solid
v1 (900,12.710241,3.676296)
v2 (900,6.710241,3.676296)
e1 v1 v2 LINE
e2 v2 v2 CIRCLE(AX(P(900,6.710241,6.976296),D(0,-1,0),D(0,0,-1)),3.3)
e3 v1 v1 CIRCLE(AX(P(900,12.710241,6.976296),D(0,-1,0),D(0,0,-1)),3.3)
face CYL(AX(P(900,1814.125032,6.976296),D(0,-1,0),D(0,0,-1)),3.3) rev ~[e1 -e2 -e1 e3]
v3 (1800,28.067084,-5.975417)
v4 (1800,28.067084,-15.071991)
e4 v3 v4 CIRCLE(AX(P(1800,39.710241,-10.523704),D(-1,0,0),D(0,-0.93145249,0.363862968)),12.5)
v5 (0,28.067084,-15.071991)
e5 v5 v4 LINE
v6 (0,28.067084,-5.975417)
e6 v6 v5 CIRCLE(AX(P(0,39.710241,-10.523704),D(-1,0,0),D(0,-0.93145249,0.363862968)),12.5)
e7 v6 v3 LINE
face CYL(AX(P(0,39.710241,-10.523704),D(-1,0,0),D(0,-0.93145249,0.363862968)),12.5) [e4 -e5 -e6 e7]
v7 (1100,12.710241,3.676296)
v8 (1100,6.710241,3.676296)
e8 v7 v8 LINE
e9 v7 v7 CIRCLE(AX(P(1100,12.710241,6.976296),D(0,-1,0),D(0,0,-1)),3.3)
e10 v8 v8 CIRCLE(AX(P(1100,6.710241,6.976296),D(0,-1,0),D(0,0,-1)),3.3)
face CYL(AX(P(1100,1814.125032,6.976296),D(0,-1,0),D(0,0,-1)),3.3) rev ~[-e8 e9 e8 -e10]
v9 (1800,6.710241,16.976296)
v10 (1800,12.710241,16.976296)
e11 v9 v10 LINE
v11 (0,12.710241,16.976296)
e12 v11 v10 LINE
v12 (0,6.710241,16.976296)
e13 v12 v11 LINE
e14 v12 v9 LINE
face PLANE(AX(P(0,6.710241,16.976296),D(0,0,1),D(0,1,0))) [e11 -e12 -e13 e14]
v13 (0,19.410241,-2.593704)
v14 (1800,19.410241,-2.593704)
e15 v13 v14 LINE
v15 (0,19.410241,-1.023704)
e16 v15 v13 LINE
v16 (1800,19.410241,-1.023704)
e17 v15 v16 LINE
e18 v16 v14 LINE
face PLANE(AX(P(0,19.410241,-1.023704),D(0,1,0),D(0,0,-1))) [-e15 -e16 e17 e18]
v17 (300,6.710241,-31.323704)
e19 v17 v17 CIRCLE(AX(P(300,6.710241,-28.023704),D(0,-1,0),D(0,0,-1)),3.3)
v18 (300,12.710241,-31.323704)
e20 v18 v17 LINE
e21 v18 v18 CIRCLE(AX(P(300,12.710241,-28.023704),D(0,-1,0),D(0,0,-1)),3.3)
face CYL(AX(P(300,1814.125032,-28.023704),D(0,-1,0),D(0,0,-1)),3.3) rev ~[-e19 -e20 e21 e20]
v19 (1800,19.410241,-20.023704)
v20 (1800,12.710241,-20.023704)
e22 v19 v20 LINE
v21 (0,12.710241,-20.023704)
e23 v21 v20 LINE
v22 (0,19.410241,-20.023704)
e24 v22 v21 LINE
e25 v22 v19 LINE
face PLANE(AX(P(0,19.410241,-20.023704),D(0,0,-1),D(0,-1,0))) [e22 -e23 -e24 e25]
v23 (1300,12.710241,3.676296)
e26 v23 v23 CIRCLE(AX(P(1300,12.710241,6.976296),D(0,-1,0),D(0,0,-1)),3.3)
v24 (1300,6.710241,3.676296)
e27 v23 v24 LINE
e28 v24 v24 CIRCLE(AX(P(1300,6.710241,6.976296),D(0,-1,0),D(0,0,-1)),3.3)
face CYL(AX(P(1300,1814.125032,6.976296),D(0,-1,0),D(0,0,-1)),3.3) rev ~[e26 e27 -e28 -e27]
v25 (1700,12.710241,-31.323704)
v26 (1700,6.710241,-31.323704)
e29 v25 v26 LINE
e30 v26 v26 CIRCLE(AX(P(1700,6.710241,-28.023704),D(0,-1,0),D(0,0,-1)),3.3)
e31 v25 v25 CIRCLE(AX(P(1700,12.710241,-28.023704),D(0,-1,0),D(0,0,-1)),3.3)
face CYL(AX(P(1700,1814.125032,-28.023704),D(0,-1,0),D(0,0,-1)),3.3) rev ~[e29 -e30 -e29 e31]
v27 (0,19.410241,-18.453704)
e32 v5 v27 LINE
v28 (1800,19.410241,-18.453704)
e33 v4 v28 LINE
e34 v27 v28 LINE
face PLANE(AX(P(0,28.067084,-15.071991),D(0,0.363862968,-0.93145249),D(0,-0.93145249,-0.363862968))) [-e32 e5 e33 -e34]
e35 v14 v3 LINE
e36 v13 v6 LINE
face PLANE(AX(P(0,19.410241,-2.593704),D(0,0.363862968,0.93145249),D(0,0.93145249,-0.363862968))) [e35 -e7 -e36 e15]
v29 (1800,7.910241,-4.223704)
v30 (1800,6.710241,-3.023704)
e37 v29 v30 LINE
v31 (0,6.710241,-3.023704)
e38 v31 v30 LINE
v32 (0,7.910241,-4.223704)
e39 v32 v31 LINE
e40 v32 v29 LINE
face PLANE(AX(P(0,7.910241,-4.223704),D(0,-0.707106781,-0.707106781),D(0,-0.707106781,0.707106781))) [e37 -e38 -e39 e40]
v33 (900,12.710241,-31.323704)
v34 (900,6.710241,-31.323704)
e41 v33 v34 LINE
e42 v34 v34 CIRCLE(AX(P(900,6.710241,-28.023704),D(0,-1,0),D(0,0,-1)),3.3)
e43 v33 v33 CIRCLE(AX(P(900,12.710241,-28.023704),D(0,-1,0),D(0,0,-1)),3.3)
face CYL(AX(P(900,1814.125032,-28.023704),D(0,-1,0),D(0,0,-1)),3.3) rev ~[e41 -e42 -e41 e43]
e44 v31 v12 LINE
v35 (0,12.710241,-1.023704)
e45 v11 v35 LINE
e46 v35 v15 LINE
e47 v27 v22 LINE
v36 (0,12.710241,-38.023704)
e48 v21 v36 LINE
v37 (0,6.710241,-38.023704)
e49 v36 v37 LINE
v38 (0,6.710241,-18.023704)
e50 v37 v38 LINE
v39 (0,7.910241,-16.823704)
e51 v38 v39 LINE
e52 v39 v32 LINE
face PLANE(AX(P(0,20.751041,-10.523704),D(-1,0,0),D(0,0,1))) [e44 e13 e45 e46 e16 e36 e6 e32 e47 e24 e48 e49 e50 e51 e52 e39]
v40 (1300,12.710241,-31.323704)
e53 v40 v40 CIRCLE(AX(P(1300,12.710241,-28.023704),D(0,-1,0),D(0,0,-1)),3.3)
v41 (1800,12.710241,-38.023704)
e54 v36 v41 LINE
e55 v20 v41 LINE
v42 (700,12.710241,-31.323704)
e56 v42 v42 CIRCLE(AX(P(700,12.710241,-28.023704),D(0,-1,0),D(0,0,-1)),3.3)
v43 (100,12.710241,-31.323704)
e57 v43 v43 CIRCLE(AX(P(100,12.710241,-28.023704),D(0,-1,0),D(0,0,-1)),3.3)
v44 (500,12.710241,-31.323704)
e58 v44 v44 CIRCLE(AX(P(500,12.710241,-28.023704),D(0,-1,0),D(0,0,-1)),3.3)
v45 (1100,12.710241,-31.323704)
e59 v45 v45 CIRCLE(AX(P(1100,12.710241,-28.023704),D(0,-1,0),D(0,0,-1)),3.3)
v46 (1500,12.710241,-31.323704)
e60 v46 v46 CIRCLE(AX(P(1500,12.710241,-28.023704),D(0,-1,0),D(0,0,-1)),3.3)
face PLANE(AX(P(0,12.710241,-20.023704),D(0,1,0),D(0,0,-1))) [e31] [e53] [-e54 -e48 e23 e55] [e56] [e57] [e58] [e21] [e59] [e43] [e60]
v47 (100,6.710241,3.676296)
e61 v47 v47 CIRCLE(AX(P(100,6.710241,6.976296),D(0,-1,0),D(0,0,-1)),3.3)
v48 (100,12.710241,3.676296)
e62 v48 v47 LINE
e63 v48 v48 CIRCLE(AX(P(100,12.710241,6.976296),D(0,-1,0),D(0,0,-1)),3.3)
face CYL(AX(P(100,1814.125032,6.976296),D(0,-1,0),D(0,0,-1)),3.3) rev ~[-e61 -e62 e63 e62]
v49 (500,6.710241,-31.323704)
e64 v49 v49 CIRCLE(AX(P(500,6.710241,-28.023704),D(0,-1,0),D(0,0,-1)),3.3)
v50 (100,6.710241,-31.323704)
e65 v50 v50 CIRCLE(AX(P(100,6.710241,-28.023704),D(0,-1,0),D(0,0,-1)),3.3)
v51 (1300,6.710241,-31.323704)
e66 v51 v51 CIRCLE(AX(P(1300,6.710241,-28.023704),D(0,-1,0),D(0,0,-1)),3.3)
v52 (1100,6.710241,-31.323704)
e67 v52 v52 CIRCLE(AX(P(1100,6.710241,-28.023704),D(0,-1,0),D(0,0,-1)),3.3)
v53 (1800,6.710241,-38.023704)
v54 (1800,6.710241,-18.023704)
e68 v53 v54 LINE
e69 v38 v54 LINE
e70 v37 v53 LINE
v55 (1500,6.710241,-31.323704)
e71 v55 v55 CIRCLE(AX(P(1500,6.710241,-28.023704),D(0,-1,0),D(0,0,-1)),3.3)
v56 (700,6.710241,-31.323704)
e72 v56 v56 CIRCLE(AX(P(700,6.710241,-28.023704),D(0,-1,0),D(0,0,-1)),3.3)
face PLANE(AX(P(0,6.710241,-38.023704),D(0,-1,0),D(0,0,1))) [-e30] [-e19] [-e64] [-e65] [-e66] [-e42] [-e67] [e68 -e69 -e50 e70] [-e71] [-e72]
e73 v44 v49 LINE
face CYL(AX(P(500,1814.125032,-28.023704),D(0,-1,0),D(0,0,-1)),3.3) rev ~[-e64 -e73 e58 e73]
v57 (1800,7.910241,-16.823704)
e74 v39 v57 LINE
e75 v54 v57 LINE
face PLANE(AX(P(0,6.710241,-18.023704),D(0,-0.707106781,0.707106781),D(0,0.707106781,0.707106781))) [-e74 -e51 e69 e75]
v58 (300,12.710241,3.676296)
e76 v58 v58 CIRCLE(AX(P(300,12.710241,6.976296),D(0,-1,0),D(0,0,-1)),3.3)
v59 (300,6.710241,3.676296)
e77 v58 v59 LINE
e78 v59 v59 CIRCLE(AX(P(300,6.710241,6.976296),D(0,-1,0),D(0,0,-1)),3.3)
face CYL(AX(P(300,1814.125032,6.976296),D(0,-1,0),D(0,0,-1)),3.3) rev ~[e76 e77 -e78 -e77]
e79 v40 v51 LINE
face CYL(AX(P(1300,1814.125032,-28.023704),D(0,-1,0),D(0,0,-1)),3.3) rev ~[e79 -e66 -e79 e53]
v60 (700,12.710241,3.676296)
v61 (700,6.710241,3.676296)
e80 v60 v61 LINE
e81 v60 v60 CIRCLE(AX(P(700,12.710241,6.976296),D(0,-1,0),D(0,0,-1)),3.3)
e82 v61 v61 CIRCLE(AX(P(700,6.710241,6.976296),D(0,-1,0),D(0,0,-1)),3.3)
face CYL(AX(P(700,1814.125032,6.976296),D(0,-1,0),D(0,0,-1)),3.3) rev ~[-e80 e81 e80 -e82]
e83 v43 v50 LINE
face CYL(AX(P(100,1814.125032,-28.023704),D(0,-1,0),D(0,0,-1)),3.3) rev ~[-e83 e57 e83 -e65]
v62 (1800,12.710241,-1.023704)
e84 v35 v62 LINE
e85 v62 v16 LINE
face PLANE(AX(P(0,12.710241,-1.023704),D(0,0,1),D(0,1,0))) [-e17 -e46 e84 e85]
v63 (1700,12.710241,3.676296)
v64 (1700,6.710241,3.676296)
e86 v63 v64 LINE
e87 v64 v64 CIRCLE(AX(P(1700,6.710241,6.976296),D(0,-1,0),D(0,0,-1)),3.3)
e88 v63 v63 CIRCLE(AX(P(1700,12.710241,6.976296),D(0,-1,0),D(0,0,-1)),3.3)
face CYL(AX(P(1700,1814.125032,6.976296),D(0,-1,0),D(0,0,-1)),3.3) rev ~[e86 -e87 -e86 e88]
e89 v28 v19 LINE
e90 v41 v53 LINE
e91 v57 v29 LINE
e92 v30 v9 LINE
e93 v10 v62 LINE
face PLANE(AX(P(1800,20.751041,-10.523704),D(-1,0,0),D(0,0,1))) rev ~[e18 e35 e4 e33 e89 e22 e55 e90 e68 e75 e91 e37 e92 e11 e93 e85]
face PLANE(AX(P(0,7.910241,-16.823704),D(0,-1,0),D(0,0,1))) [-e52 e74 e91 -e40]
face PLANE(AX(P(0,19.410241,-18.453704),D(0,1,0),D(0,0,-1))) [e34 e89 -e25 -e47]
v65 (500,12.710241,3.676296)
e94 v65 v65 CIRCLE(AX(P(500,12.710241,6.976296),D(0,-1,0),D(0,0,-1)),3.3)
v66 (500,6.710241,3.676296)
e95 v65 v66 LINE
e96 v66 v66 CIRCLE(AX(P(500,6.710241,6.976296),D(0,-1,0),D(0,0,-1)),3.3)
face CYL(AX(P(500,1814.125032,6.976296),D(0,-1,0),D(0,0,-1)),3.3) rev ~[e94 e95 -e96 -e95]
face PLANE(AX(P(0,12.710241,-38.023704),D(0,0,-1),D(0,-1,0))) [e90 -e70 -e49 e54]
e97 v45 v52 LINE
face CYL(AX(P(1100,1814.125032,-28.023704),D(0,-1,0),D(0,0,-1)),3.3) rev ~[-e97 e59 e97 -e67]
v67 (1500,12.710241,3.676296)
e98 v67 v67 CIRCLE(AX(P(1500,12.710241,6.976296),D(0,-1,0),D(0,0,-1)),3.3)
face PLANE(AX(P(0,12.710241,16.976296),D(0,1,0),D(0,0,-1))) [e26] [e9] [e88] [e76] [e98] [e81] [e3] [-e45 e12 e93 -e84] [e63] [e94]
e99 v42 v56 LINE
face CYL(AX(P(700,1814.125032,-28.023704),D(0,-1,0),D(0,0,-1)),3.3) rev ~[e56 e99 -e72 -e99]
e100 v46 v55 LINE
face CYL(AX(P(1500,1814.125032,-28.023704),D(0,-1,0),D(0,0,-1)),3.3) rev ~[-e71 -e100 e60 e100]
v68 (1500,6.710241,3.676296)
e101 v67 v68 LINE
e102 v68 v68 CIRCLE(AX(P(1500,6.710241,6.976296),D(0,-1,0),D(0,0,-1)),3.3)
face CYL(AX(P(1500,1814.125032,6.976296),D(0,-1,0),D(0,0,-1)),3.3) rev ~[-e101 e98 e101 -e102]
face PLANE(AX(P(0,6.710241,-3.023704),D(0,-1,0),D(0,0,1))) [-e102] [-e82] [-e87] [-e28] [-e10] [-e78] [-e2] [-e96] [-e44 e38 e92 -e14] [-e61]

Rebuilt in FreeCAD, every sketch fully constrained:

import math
import FreeCAD as App
import Part
import Sketcher

V = App.Vector

doc = App.newDocument("Part")
body = doc.addObject("PartDesign::Body", "Body")

# Sketch on YZ plane
sketch1 = doc.addObject("Sketcher::SketchObject", "Sketch")
body.addObject(sketch1)
sketch1.AttachmentSupport = (doc.YZ_Plane, [""])
sketch1.MapMode = "FlatFace"
sketch1.addGeometry(Part.LineSegment(V(6.7, -38, 0), V(12.7, -38, 0)), False)
sketch1.addGeometry(Part.LineSegment(V(12.7, -38, 0), V(12.7, -20, 0)), False)
sketch1.addGeometry(Part.LineSegment(V(12.7, -20, 0), V(19.4, -20, 0)), False)
sketch1.addGeometry(Part.LineSegment(V(19.4, -20, 0), V(19.4, -18.5, 0)), False)
sketch1.addGeometry(Part.LineSegment(V(19.4, -18.5, 0), V(28.1, -15.1, 0)), False)
sketch1.addGeometry(Part.ArcOfCircle(Part.Circle(V(39.7, -10.5, 0), V(0, 0, 1), 12.5), math.radians(-159), math.radians(159)), False)
sketch1.addGeometry(Part.LineSegment(V(28.1, -6, 0), V(19.4, -2.6, 0)), False)
sketch1.addGeometry(Part.LineSegment(V(19.4, -2.6, 0), V(19.4, -1, 0)), False)
sketch1.addGeometry(Part.LineSegment(V(19.4, -1, 0), V(12.7, -1, 0)), False)
sketch1.addGeometry(Part.LineSegment(V(12.7, -1, 0), V(12.7, 17, 0)), False)
sketch1.addGeometry(Part.LineSegment(V(12.7, 17, 0), V(6.7, 17, 0)), False)
sketch1.addGeometry(Part.LineSegment(V(6.7, 17, 0), V(6.7, -3, 0)), False)
sketch1.addGeometry(Part.LineSegment(V(6.7, -3, 0), V(7.9, -4.2, 0)), False)
sketch1.addGeometry(Part.LineSegment(V(7.9, -4.2, 0), V(7.9, -16.8, 0)), False)
sketch1.addGeometry(Part.LineSegment(V(7.9, -16.8, 0), V(6.7, -18, 0)), False)
sketch1.addGeometry(Part.LineSegment(V(6.7, -18, 0), V(6.7, -38, 0)), False)
sketch1.addConstraint(Sketcher.Constraint("Coincident", 0, 2, 1, 1))
sketch1.addConstraint(Sketcher.Constraint("Coincident", 1, 2, 2, 1))
sketch1.addConstraint(Sketcher.Constraint("Coincident", 2, 2, 3, 1))
sketch1.addConstraint(Sketcher.Constraint("Coincident", 3, 2, 4, 1))
sketch1.addConstraint(Sketcher.Constraint("Coincident", 4, 2, 5, 1))
sketch1.addConstraint(Sketcher.Constraint("Coincident", 5, 2, 6, 1))
sketch1.addConstraint(Sketcher.Constraint("Coincident", 6, 2, 7, 1))
sketch1.addConstraint(Sketcher.Constraint("Coincident", 7, 2, 8, 1))
sketch1.addConstraint(Sketcher.Constraint("Coincident", 8, 2, 9, 1))
sketch1.addConstraint(Sketcher.Constraint("Coincident", 9, 2, 10, 1))
sketch1.addConstraint(Sketcher.Constraint("Coincident", 10, 2, 11, 1))
sketch1.addConstraint(Sketcher.Constraint("Coincident", 11, 2, 12, 1))
sketch1.addConstraint(Sketcher.Constraint("Coincident", 12, 2, 13, 1))
sketch1.addConstraint(Sketcher.Constraint("Coincident", 13, 2, 14, 1))
sketch1.addConstraint(Sketcher.Constraint("Coincident", 14, 2, 15, 1))
sketch1.addConstraint(Sketcher.Constraint("Coincident", 15, 2, 0, 1))
sketch1.addConstraint(Sketcher.Constraint("Horizontal", 0))
sketch1.addConstraint(Sketcher.Constraint("Vertical", 1))
sketch1.addConstraint(Sketcher.Constraint("Horizontal", 2))
sketch1.addConstraint(Sketcher.Constraint("Vertical", 3))
sketch1.addConstraint(Sketcher.Constraint("Vertical", 7))
sketch1.addConstraint(Sketcher.Constraint("Horizontal", 8))
sketch1.addConstraint(Sketcher.Constraint("Vertical", 9))
sketch1.addConstraint(Sketcher.Constraint("Horizontal", 10))
sketch1.addConstraint(Sketcher.Constraint("Vertical", 11))
sketch1.addConstraint(Sketcher.Constraint("Vertical", 13))
sketch1.addConstraint(Sketcher.Constraint("Vertical", 15))
sketch1.addConstraint(Sketcher.Constraint("Perpendicular", 12, 14))
sketch1.addConstraint(Sketcher.Constraint("Vertical", 4, 2, 5, 2))
sketch1.addConstraint(Sketcher.Constraint("Vertical", 3, 2, 6, 2))
sketch1.addConstraint(Sketcher.Constraint("Vertical", 1, 2, 8, 2))
sketch1.addConstraint(Sketcher.Constraint("Vertical", 11, 2, 14, 2))
sketch1.addConstraint(Sketcher.Constraint("Equal", 3, 7))
sketch1.addConstraint(Sketcher.Constraint("Equal", 1, 9))
sketch1.addConstraint(Sketcher.Constraint("Equal", 11, 15))
sketch1.addConstraint(Sketcher.Constraint("Equal", 4, 6))
sketch1.addConstraint(Sketcher.Constraint("Equal", 12, 14))
sketch1.addConstraint(Sketcher.Constraint("Radius", 5, 12.5))
sketch1.addConstraint(Sketcher.Constraint("DistanceX", 0, 1, 0, 2, 6.0))
sketch1.addConstraint(Sketcher.Constraint("DistanceY", 1, 1, 1, 2, 18.0))
sketch1.addConstraint(Sketcher.Constraint("DistanceY", 11, 2, 11, 1, 20.0))
sketch1.addConstraint(Sketcher.Constraint("DistanceX", 2, 1, 2, 2, 6.7))
sketch1.addConstraint(Sketcher.Constraint("DistanceY", 13, 2, 13, 1, 12.6))
sketch1.addConstraint(Sketcher.Constraint("DistanceX", 0, 2, 5, 3, 27.0))
sketch1.addConstraint(Sketcher.Constraint("DistanceY", 2, 2, 7, 2, 19.0))
sketch1.addConstraint(Sketcher.Constraint("DistanceY", 3, 1, 3, 2, 1.57))
sketch1.addConstraint(Sketcher.Constraint("DistanceX", -1, 1, 5, 3, 39.710241))
sketch1.addConstraint(Sketcher.Constraint("DistanceY", 4, 2, -1, 1, 15.071991))
sketch1.addConstraint(Sketcher.Constraint("DistanceY", 5, 3, -1, 1, 10.523704))
pad1 = doc.addObject("PartDesign::Pad", "Pad")
body.addObject(pad1)
pad1.Profile = sketch1
pad1.Length = 1800

# Sketch on XZ plane
sketch2 = doc.addObject("Sketcher::SketchObject", "Sketch001")
body.addObject(sketch2)
sketch2.AttachmentSupport = (doc.XZ_Plane, [""])
sketch2.MapMode = "FlatFace"
sketch2.AttachmentOffset = App.Placement(V(0, 0, -12.710241), App.Rotation())
sketch2.addGeometry(Part.Circle(V(100, -28, 0), V(0, 0, 1), 3.3), False)
sketch2.addGeometry(Part.Circle(V(100, 7, 0), V(0, 0, 1), 3.3), False)
sketch2.addConstraint(Sketcher.Constraint("Equal", 0, 1))
sketch2.addConstraint(Sketcher.Constraint("Vertical", 0, 3, 1, 3))
sketch2.addConstraint(Sketcher.Constraint("Diameter", 0, 6.6))
sketch2.addConstraint(Sketcher.Constraint("DistanceX", -1, 1, 0, 3, 100.0))
sketch2.addConstraint(Sketcher.Constraint("DistanceY", 0, 3, 1, 3, 35.0))
sketch2.addConstraint(Sketcher.Constraint("DistanceY", 0, 3, -1, 1, 28.023704))
doc.recompute()
hole = doc.addObject("PartDesign::Hole", "Hole")
body.addObject(hole)
hole.Profile = sketch2
hole.ThreadType = "None"
hole.Diameter = 6.6
hole.DepthType = "ThroughAll"
hole.Reversed = True
doc.recompute()

linearpattern = doc.addObject("PartDesign::LinearPattern", "LinearPattern")
body.addObject(linearpattern)
linearpattern.Originals = [hole]
linearpattern.Direction = (doc.X_Axis, [""])
linearpattern.Mode = "offset"
linearpattern.Offset = 200
linearpattern.Occurrences = 9
body.Tip = linearpattern

doc.recompute()
